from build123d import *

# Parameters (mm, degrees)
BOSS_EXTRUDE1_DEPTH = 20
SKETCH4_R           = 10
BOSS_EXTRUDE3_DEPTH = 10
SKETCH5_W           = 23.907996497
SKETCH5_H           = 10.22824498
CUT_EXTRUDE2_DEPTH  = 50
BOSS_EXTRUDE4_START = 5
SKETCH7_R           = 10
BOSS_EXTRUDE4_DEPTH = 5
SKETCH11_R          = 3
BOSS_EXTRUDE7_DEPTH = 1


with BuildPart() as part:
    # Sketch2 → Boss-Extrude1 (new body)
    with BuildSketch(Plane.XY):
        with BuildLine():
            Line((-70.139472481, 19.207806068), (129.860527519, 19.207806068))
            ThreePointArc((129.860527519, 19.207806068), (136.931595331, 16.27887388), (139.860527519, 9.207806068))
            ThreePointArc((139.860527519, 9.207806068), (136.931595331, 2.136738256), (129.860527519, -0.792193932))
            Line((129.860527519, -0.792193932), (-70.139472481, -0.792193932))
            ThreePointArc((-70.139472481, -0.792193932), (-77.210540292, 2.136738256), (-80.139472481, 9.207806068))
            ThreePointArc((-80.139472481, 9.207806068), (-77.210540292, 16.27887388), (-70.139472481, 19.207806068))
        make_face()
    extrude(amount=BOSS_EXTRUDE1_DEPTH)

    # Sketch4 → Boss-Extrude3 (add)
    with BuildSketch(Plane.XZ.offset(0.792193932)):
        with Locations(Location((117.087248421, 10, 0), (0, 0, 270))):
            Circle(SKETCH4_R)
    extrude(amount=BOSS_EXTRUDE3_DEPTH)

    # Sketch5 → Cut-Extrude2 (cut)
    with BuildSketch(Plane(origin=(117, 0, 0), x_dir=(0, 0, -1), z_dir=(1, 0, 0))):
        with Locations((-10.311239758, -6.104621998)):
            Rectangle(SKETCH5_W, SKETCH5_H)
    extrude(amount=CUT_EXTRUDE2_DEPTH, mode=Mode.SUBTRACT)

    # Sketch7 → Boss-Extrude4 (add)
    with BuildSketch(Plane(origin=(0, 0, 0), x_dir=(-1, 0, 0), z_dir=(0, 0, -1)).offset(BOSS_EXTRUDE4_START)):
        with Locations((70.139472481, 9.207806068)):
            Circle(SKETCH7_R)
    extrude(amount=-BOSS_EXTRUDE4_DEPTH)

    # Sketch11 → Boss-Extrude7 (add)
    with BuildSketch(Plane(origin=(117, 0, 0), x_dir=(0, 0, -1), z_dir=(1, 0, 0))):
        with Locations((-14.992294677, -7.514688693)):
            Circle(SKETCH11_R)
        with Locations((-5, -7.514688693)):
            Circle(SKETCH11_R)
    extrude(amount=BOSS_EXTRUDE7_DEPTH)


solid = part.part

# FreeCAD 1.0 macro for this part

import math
import FreeCAD as App
import Part
import Sketcher

V = App.Vector
Q = App.Units.Quantity


def add_polygon(sketch, points):
    """Adds a closed chain of lines whose ends are joined by coincident constraints."""
    first, n = sketch.GeometryCount, len(points)
    for a, b in zip(points, points[1:] + points[:1]):
        sketch.addGeometry(Part.LineSegment(App.Vector(*a, 0), App.Vector(*b, 0)), False)
    for i in range(n):
        sketch.addConstraint(Sketcher.Constraint("Coincident", first + i, 2, first + (i + 1) % n, 1))

doc = App.newDocument("Part")
body = doc.addObject("PartDesign::Body", "Body")

sketch1 = doc.addObject("Sketcher::SketchObject", "Sketch")
body.addObject(sketch1)
sketch1.AttachmentSupport = (doc.XY_Plane, [""])
sketch1.MapMode = "FlatFace"
sketch1.addGeometry(Part.LineSegment(V(129.860528, 19.207806, 0), V(-70.139472, 19.207806, 0)), False)
sketch1.addGeometry(Part.ArcOfCircle(Part.Circle(V(-70.139472, 9.207806, 0), V(0, 0, 1), 10), math.radians(90), math.radians(180)), False)
sketch1.addGeometry(Part.ArcOfCircle(Part.Circle(V(-70.139472, 9.207806, 0), V(0, 0, 1), 10), math.radians(-180), math.radians(-90)), False)
sketch1.addGeometry(Part.LineSegment(V(-70.139472, -0.792194, 0), V(129.860528, -0.792194, 0)), False)
sketch1.addGeometry(Part.ArcOfCircle(Part.Circle(V(129.860528, 9.207806, 0), V(0, 0, 1), 10), math.radians(-90), math.radians(0)), False)
sketch1.addGeometry(Part.ArcOfCircle(Part.Circle(V(129.860528, 9.207806, 0), V(0, 0, 1), 10), math.radians(0), math.radians(90)), False)
sketch1.addConstraint(Sketcher.Constraint("Tangent", 0, 2, 1, 1))
sketch1.addConstraint(Sketcher.Constraint("Tangent", 1, 2, 2, 1))
sketch1.addConstraint(Sketcher.Constraint("Tangent", 2, 2, 3, 1))
sketch1.addConstraint(Sketcher.Constraint("Tangent", 3, 2, 4, 1))
sketch1.addConstraint(Sketcher.Constraint("Tangent", 4, 2, 5, 1))
sketch1.addConstraint(Sketcher.Constraint("Tangent", 5, 2, 0, 1))
sketch1.addConstraint(Sketcher.Constraint("Horizontal", 0))
sketch1.addConstraint(Sketcher.Constraint("Horizontal", 3))
sketch1.addConstraint(Sketcher.Constraint("Equal", 1, 2))
sketch1.addConstraint(Sketcher.Constraint("Equal", 2, 4))
sketch1.addConstraint(Sketcher.Constraint("Horizontal", 5, 3, 1, 2))
sketch1.addConstraint(Sketcher.Constraint("Horizontal", 1, 2, 4, 2))
sketch1.addConstraint(Sketcher.Constraint("Radius", 1, Q("10 mm")))
sketch1.addConstraint(Sketcher.Constraint("DistanceX", 0, 2, 0, 1, Q("200 mm")))
sketch1.addConstraint(Sketcher.Constraint("DistanceX", 1, 3, -1, 1, Q("70.139472 mm")))
sketch1.addConstraint(Sketcher.Constraint("DistanceY", -1, 1, 1, 3, Q("9.207806 mm")))
pad1 = doc.addObject("PartDesign::Pad", "Pad")
body.addObject(pad1)
pad1.Profile = sketch1
pad1.Length = 20

sketch2 = doc.addObject("Sketcher::SketchObject", "Sketch001")
body.addObject(sketch2)
sketch2.AttachmentSupport = (doc.XZ_Plane, [""])
sketch2.MapMode = "FlatFace"
sketch2.AttachmentOffset = App.Placement(V(0, 0, 0.792194), App.Rotation())
sketch2.addGeometry(Part.Circle(V(117.087248, 10, 0), V(0, 0, 1), 10), False)
sketch2.addConstraint(Sketcher.Constraint("Diameter", 0, Q("20 mm")))
sketch2.addConstraint(Sketcher.Constraint("DistanceY", -1, 1, 0, 3, Q("10 mm")))
sketch2.addConstraint(Sketcher.Constraint("DistanceX", -1, 1, 0, 3, Q("117.087248 mm")))
pad2 = doc.addObject("PartDesign::Pad", "Pad001")
body.addObject(pad2)
pad2.Profile = sketch2
pad2.Length = 10

sketch3 = doc.addObject("Sketcher::SketchObject", "Sketch002")
body.addObject(sketch3)
sketch3.AttachmentSupport = (doc.YZ_Plane, [""])
sketch3.MapMode = "FlatFace"
sketch3.AttachmentOffset = App.Placement(V(0, 0, 117), App.Rotation())
add_polygon(sketch3, [(-0.9905, 22.265238), (-11.218744, 22.265238), (-11.218744, -1.642758), (-0.9905, -1.642758)])
sketch3.addConstraint(Sketcher.Constraint("Horizontal", 0))
sketch3.addConstraint(Sketcher.Constraint("Vertical", 1))
sketch3.addConstraint(Sketcher.Constraint("Horizontal", 2))
sketch3.addConstraint(Sketcher.Constraint("Vertical", 3))
sketch3.addConstraint(Sketcher.Constraint("DistanceX", 2, 2, -1, 1, Q("0.9905 mm")))
sketch3.addConstraint(Sketcher.Constraint("DistanceX", 0, 2, 0, 1, Q("10.228245 mm")))
sketch3.addConstraint(Sketcher.Constraint("DistanceY", 1, 2, 1, 1, Q("23.907996 mm")))
sketch3.addConstraint(Sketcher.Constraint("DistanceY", -1, 1, 0, 2, Q("22.265238 mm")))
pocket1 = doc.addObject("PartDesign::Pocket", "Pocket")
body.addObject(pocket1)
pocket1.Profile = sketch3
pocket1.Length = 50
pocket1.Reversed = True

sketch4 = doc.addObject("Sketcher::SketchObject", "Sketch003")
body.addObject(sketch4)
sketch4.AttachmentSupport = (doc.XY_Plane, [""])
sketch4.MapMode = "FlatFace"
sketch4.AttachmentOffset = App.Placement(V(0, 0, -5), App.Rotation())
sketch4.addGeometry(Part.Circle(V(-70.139472, 9.207806, 0), V(0, 0, 1), 10), False)
sketch4.addConstraint(Sketcher.Constraint("Diameter", 0, Q("20 mm")))
sketch4.addConstraint(Sketcher.Constraint("DistanceX", 0, 3, -1, 1, Q("70.139472 mm")))
sketch4.addConstraint(Sketcher.Constraint("DistanceY", -1, 1, 0, 3, Q("9.207806 mm")))
pad3 = doc.addObject("PartDesign::Pad", "Pad002")
body.addObject(pad3)
pad3.Profile = sketch4
pad3.Length = 5

sketch5 = doc.addObject("Sketcher::SketchObject", "Sketch004")
body.addObject(sketch5)
sketch5.AttachmentSupport = (doc.YZ_Plane, [""])
sketch5.MapMode = "FlatFace"
sketch5.AttachmentOffset = App.Placement(V(0, 0, 117), App.Rotation())
sketch5.addGeometry(Part.Circle(V(-7.514689, 14.992295, 0), V(0, 0, 1), 3), False)
sketch5.addGeometry(Part.Circle(V(-7.514689, 5, 0), V(0, 0, 1), 3), False)
sketch5.addConstraint(Sketcher.Constraint("Equal", 0, 1))
sketch5.addConstraint(Sketcher.Constraint("Vertical", 0, 3, 1, 3))
sketch5.addConstraint(Sketcher.Constraint("Diameter", 0, Q("6 mm")))
sketch5.addConstraint(Sketcher.Constraint("DistanceY", -1, 1, 1, 3, Q("5 mm")))
sketch5.addConstraint(Sketcher.Constraint("DistanceX", 0, 3, -1, 1, Q("7.514689 mm")))
sketch5.addConstraint(Sketcher.Constraint("DistanceY", -1, 1, 0, 3, Q("14.992295 mm")))
pad4 = doc.addObject("PartDesign::Pad", "Pad003")
body.addObject(pad4)
pad4.Profile = sketch5
pad4.Length = 1

doc.recompute()
